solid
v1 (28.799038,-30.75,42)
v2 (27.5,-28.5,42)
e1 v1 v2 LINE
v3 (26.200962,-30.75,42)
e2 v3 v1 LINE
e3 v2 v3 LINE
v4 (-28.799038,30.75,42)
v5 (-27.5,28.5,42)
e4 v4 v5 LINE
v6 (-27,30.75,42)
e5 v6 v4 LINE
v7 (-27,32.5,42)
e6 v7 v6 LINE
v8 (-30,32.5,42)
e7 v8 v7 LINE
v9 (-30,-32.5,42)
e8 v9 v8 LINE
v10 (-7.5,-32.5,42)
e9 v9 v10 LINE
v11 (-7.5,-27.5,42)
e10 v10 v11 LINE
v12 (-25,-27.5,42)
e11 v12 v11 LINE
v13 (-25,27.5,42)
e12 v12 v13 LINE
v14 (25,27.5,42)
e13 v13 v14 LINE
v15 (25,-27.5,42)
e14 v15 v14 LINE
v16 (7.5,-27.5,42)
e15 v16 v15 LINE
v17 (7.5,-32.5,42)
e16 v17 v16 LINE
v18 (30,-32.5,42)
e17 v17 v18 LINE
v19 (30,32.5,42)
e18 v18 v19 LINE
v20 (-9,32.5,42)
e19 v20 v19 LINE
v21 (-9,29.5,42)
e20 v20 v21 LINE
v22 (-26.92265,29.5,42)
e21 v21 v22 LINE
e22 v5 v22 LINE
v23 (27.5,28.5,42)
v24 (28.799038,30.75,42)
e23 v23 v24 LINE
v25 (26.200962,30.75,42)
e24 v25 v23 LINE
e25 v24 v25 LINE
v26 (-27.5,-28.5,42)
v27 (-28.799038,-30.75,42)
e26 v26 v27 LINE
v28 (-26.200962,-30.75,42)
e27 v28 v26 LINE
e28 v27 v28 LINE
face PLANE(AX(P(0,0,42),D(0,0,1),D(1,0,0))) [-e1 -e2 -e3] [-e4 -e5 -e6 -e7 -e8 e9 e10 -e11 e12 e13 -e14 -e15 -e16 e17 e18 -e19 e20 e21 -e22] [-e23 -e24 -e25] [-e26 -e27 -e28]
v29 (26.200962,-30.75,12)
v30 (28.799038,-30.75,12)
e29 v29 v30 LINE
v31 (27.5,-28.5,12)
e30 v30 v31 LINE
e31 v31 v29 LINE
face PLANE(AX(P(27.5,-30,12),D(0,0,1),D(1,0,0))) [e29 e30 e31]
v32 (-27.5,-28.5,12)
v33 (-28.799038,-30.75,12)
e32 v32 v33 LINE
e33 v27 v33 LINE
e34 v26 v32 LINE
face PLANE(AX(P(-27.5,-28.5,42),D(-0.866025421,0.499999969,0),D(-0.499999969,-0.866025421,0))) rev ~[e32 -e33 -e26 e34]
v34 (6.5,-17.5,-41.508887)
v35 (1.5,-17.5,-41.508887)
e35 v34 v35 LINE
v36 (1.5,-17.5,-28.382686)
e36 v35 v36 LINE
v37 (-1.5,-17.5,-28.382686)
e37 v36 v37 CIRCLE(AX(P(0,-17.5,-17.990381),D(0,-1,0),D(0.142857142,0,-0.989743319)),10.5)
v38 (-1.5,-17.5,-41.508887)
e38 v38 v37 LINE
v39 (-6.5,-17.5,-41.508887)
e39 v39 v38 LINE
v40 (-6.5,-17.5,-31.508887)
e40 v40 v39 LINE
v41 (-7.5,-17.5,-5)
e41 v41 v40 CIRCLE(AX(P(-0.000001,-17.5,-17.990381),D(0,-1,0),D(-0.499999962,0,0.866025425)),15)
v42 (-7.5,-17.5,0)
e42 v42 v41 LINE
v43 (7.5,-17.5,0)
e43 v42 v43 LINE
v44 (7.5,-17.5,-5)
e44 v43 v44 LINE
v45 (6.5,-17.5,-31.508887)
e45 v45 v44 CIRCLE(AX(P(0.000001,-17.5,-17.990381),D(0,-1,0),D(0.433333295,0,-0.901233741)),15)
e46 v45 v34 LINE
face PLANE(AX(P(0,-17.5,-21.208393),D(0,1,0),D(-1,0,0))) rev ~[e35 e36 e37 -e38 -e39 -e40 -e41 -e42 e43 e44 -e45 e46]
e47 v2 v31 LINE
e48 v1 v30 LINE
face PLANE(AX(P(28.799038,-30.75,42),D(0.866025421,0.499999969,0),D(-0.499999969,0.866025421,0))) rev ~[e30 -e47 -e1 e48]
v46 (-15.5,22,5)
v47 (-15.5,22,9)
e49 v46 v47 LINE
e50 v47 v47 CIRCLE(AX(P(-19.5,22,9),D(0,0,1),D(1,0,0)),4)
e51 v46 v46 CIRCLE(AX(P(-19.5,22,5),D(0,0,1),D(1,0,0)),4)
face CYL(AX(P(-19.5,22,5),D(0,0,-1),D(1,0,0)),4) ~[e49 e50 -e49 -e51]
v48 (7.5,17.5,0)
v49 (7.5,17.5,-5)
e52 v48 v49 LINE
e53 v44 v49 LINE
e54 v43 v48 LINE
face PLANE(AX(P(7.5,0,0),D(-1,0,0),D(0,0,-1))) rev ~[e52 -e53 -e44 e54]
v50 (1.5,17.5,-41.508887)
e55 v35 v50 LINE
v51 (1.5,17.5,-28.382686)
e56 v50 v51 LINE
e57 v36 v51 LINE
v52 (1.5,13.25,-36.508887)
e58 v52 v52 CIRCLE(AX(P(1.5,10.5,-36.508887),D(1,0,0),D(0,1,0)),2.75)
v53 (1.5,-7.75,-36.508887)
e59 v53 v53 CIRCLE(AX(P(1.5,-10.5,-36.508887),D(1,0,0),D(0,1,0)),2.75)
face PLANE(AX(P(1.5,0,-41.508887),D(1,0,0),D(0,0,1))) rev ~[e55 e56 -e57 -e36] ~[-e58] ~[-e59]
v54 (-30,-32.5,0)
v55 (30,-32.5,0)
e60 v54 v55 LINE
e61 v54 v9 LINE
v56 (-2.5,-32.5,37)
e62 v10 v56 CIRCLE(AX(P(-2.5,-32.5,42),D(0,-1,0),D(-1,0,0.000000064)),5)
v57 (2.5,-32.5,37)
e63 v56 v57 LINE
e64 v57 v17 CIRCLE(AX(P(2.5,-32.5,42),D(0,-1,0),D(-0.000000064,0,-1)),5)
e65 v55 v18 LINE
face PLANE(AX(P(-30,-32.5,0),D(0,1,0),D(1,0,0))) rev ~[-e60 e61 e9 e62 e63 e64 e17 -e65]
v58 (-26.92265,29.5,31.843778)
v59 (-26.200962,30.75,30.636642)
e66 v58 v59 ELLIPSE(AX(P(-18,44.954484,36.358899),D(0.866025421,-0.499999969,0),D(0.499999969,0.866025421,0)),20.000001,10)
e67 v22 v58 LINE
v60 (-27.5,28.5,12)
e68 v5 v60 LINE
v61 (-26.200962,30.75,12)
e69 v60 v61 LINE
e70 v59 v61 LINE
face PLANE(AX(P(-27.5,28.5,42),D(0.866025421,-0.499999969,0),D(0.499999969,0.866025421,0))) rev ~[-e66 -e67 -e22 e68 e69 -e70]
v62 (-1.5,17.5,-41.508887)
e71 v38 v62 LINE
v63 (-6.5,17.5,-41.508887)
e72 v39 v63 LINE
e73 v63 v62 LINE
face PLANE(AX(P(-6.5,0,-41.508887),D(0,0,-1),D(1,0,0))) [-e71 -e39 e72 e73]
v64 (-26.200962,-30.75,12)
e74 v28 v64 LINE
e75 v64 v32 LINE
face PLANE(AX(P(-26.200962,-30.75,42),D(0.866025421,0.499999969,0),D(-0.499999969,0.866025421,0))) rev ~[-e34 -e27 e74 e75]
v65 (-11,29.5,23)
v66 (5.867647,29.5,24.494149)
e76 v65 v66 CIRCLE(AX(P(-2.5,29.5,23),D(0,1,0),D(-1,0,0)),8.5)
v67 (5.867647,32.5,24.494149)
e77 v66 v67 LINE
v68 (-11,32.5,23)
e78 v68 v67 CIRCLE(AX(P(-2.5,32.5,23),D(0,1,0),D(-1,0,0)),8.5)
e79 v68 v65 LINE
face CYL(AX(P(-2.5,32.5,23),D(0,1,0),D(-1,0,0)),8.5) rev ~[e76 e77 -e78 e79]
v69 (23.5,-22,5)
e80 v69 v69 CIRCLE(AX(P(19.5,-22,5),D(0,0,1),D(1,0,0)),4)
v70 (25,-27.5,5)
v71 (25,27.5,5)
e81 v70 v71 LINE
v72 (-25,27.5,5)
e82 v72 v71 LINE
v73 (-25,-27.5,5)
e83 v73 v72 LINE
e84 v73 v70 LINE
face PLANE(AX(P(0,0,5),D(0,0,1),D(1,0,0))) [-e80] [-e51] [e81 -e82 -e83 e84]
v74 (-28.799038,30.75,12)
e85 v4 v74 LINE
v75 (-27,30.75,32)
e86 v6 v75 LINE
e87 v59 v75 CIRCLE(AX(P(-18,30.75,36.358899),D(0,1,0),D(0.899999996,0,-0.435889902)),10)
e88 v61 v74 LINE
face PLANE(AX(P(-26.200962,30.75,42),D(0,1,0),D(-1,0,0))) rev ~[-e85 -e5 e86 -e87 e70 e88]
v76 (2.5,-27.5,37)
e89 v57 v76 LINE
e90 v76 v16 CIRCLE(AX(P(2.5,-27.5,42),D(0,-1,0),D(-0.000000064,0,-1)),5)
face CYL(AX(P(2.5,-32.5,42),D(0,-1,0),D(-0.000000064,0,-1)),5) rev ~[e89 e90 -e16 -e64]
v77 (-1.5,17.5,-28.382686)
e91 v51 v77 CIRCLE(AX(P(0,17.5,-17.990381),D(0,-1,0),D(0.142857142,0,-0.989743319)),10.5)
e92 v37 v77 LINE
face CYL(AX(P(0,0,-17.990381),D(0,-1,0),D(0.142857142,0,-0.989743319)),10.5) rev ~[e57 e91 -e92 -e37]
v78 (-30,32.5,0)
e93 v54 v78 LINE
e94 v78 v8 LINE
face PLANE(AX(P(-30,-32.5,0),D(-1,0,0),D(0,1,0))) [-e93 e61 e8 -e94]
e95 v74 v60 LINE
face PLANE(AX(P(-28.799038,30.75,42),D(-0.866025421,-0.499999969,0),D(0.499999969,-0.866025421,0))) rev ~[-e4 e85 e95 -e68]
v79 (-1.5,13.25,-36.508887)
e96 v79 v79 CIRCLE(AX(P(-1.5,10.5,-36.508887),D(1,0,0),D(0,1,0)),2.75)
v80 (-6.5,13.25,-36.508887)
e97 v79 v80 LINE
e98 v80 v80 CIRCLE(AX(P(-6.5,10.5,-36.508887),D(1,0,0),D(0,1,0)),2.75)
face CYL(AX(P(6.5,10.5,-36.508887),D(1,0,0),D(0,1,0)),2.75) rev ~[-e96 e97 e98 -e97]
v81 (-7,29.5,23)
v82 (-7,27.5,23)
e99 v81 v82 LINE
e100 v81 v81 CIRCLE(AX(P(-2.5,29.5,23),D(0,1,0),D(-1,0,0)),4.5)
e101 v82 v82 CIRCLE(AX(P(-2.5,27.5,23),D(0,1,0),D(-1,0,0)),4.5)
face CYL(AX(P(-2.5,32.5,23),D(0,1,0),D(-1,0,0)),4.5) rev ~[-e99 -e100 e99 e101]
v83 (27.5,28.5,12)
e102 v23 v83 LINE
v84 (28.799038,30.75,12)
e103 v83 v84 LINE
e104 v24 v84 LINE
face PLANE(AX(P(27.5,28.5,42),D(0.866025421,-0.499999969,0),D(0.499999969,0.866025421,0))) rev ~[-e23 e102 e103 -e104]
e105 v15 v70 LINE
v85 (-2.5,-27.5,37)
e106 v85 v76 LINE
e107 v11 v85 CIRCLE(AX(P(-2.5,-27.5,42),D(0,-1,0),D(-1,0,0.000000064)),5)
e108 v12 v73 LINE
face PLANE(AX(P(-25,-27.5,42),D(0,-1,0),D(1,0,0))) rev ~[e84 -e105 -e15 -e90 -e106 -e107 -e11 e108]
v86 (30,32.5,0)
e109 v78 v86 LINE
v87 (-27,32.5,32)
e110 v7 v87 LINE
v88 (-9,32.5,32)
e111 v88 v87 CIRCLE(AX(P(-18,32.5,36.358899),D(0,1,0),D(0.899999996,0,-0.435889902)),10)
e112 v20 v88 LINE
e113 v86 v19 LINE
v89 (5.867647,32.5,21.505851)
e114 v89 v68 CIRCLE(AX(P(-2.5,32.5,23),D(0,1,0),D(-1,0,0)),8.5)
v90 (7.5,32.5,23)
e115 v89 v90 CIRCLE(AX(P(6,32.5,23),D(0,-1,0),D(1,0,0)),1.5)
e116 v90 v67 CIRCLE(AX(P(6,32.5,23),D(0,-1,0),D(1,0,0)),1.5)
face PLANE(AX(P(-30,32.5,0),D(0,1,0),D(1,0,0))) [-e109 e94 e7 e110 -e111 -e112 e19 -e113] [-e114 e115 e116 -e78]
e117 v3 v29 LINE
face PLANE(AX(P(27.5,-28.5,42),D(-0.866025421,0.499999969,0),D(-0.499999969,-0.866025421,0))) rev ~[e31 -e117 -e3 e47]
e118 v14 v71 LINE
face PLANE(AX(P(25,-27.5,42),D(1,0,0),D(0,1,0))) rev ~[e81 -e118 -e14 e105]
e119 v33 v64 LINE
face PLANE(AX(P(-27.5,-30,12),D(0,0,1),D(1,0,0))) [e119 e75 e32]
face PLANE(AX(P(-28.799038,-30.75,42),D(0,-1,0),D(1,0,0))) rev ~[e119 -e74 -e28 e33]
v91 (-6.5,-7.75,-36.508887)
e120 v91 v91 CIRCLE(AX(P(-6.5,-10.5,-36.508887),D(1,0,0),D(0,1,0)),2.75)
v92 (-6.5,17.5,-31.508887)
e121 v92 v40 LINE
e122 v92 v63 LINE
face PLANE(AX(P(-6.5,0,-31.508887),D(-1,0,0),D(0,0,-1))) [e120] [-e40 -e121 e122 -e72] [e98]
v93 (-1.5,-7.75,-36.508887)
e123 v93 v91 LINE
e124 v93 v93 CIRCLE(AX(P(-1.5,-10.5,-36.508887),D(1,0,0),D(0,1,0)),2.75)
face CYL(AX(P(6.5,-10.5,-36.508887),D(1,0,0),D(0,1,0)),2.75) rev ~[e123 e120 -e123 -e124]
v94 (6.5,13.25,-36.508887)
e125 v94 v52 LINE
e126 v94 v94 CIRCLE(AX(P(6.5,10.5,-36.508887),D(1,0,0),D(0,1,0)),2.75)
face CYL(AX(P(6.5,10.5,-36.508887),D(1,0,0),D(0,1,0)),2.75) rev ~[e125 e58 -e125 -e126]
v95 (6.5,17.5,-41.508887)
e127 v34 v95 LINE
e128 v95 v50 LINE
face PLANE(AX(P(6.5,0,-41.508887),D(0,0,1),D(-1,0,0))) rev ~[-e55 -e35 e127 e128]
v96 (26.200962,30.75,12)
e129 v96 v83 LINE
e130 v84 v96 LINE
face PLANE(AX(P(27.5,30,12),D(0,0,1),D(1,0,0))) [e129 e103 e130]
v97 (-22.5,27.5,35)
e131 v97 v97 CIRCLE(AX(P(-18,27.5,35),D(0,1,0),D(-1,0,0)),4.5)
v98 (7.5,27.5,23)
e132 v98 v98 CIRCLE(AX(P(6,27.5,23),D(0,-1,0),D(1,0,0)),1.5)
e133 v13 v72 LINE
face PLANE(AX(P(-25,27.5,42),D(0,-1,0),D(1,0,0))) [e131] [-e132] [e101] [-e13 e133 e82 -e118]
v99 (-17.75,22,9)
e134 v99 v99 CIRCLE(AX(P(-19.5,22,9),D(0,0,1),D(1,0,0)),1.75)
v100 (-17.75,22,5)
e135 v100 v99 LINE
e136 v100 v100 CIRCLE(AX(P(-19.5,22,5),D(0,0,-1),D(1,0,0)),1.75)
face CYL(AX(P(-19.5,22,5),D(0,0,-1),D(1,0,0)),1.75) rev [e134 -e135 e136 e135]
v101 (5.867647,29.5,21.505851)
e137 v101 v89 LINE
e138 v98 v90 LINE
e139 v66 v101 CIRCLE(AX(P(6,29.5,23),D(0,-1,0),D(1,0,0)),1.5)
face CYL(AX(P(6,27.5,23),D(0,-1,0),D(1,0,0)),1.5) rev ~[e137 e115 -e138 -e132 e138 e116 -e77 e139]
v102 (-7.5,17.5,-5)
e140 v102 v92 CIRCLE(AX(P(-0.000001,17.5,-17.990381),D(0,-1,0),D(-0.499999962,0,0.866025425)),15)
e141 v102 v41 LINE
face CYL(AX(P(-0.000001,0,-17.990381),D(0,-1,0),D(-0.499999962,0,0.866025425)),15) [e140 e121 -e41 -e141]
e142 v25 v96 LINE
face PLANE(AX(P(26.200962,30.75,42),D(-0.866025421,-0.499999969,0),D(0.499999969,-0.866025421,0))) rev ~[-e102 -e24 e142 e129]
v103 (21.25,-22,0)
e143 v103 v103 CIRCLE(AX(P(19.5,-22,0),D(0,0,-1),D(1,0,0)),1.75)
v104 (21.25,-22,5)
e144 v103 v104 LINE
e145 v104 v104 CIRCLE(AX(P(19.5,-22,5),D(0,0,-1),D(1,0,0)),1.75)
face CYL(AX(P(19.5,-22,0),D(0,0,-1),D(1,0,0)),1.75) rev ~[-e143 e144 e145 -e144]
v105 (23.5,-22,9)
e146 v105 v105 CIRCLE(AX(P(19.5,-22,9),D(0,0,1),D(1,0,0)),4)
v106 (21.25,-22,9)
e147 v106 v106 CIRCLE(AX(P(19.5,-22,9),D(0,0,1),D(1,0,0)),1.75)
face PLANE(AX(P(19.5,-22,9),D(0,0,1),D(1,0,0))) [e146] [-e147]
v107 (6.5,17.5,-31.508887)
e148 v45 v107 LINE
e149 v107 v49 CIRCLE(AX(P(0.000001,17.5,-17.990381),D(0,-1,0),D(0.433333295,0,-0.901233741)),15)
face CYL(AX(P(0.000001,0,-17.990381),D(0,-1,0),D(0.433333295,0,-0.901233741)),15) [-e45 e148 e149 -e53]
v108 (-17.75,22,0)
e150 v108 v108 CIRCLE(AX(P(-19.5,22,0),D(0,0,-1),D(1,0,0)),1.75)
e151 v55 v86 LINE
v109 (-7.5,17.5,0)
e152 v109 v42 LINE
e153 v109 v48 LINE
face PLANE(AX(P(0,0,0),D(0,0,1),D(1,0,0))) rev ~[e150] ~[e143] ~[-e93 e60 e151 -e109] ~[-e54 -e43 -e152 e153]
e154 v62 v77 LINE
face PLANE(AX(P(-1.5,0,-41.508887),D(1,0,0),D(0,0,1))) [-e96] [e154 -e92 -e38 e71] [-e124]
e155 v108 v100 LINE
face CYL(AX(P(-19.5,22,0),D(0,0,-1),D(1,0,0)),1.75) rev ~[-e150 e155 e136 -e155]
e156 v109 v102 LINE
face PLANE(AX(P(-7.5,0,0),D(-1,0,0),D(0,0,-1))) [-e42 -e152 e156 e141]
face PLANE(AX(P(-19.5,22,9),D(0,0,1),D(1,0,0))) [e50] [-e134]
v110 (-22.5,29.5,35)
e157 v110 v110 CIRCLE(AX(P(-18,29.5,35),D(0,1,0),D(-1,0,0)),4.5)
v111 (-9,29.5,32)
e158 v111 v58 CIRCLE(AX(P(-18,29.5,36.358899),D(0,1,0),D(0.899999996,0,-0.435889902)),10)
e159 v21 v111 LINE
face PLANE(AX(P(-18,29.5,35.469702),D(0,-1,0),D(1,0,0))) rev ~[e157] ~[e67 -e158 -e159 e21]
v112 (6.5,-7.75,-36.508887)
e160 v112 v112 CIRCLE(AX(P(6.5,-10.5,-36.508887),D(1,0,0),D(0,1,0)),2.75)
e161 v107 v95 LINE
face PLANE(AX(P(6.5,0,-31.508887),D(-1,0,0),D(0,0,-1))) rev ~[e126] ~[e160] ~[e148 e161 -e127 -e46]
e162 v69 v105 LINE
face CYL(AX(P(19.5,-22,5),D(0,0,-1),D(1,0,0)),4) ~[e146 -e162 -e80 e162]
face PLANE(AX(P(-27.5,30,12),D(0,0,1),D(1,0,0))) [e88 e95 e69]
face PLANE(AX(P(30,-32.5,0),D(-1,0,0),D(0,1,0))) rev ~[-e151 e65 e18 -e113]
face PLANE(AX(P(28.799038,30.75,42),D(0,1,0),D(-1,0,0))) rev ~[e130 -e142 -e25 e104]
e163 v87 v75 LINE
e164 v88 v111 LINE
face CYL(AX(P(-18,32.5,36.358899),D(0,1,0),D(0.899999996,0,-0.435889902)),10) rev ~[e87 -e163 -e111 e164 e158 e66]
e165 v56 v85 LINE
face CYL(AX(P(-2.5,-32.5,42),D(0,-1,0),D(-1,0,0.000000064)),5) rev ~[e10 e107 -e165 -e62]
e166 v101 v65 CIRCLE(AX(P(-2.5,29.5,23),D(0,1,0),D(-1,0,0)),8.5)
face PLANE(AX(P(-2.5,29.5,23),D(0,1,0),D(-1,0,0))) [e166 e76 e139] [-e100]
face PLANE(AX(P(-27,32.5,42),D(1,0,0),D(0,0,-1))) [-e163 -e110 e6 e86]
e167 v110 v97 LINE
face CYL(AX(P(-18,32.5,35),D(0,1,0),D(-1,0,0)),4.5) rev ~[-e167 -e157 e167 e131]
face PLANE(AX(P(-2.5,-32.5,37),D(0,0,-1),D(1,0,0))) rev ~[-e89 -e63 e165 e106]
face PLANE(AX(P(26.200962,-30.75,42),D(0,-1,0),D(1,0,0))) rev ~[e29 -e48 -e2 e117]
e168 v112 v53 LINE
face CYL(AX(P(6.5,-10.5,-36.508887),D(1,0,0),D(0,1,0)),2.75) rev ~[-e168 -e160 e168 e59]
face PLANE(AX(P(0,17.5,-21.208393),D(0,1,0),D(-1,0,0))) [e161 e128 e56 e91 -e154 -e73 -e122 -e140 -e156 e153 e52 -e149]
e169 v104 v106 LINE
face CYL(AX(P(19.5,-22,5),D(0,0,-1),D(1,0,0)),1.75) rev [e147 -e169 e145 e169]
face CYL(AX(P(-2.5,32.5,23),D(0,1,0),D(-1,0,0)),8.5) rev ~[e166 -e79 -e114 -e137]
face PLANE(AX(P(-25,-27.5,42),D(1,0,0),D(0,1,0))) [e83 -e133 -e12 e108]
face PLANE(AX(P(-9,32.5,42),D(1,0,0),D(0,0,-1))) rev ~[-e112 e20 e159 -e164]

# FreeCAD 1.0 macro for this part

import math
import FreeCAD as App
import Part
import Sketcher
from FreeCAD import Vector
Q = App.Units.Quantity

doc = App.newDocument("Part")
params = doc.addObject("Spreadsheet::Sheet", "Params")
for row, (alias, value) in enumerate([
    ("sketch1_width", "60 mm"),
    ("sketch1_height", "65 mm"),
    ("pad1_length", "42 mm"),
    ("sketch2_width", "50 mm"),
    ("sketch2_height", "55 mm"),
    ("pocket1_length", "37 mm"),
    ("sketch3_diameter", "3.5 mm"),
    ("pocket2_length", "5 mm"),
    ("sketch4_diameter", "8 mm"),
    ("sketch4_diameter2", "3.5 mm"),
    ("pad2_length", "4 mm"),
    ("sketch5_diameter", "9 mm"),
    ("pocket3_length", "5 mm"),
    ("sketch6_diameter", "17 mm"),
    ("pocket4_length", "3 mm"),
    ("pocket5_length", "30 mm"),
    ("sketch8_radius", "5 mm"),
    ("sketch8_width", "15 mm"),
    ("pocket6_length", "5 mm"),
    ("sketch9_radius", "15 mm"),
    ("sketch9_radius2", "10.5 mm"),
    ("sketch9_width", "15 mm"),
    ("sketch9_width2", "5 mm"),
    ("sketch9_height", "10 mm"),
    ("pad3_length", "35 mm"),
    ("sketch10_diameter", "5.5 mm"),
    ("sketch11_diameter", "9 mm"),
    ("pocket8_length", "5 mm"),
    ("sketch12_radius", "10 mm"),
    ("sketch12_width", "18 mm"),
    ("sketch12_height", "10 mm"),
    ("pocket9_length", "3 mm"),
    ("sketch13_diameter", "3 mm"),
    ("pocket10_length", "5 mm"),
], start=1):
    params.set(f"A{row}", alias)
    params.set(f"B{row}", "=" + value)
    params.setAlias(f"B{row}", alias)

body = doc.addObject("PartDesign::Body", "Body")

# Sketch on XY plane
sketch1 = body.newObject("Sketcher::SketchObject", "Sketch")
sketch1.AttachmentSupport = (doc.getObject("XY_Plane"), [""])
sketch1.MapMode = "FlatFace"
sketch1.addGeometry(Part.LineSegment(Vector(-30, 32, 0), Vector(-30, -32, 0)), False)
sketch1.addGeometry(Part.LineSegment(Vector(-30, -32, 0), Vector(30, -32, 0)), False)
sketch1.addGeometry(Part.LineSegment(Vector(30, -32, 0), Vector(30, 32, 0)), False)
sketch1.addGeometry(Part.LineSegment(Vector(30, 32, 0), Vector(-30, 32, 0)), False)
sketch1.addConstraint(Sketcher.Constraint("Coincident", 0, 2, 1, 1))
sketch1.addConstraint(Sketcher.Constraint("Coincident", 1, 2, 2, 1))
sketch1.addConstraint(Sketcher.Constraint("Coincident", 2, 2, 3, 1))
sketch1.addConstraint(Sketcher.Constraint("Coincident", 3, 2, 0, 1))
sketch1.addConstraint(Sketcher.Constraint("Vertical", 0))
sketch1.addConstraint(Sketcher.Constraint("Horizontal", 1))
sketch1.addConstraint(Sketcher.Constraint("Vertical", 2))
sketch1.addConstraint(Sketcher.Constraint("Horizontal", 3))
sketch1.addConstraint(Sketcher.Constraint("Symmetric", 0, 2, 2, 2, -1, 1))
sketch1.addConstraint(Sketcher.Constraint("DistanceX", 1, 1, 1, 2, Q("60 mm")))
sketch1.addConstraint(Sketcher.Constraint("DistanceY", 0, 2, 0, 1, Q("65 mm")))
sketch1.setExpression("Constraints[9]", "Params.sketch1_width")
sketch1.setExpression("Constraints[10]", "Params.sketch1_height")
pad1 = body.newObject("PartDesign::Pad", "Pad")
pad1.Profile = sketch1
pad1.setExpression("Length", "Params.pad1_length")

# Sketch on XY plane
sketch2 = body.newObject("Sketcher::SketchObject", "Sketch001")
sketch2.AttachmentSupport = (doc.getObject("XY_Plane"), [""])
sketch2.MapMode = "FlatFace"
sketch2.AttachmentOffset = App.Placement(Vector(0, 0, 42), App.Rotation())
sketch2.addGeometry(Part.LineSegment(Vector(-25, 28, 0), Vector(-25, -28, 0)), False)
sketch2.addGeometry(Part.LineSegment(Vector(-25, -28, 0), Vector(25, -28, 0)), False)
sketch2.addGeometry(Part.LineSegment(Vector(25, -28, 0), Vector(25, 28, 0)), False)
sketch2.addGeometry(Part.LineSegment(Vector(25, 28, 0), Vector(-25, 28, 0)), False)
sketch2.addConstraint(Sketcher.Constraint("Coincident", 0, 2, 1, 1))
sketch2.addConstraint(Sketcher.Constraint("Coincident", 1, 2, 2, 1))
sketch2.addConstraint(Sketcher.Constraint("Coincident", 2, 2, 3, 1))
sketch2.addConstraint(Sketcher.Constraint("Coincident", 3, 2, 0, 1))
sketch2.addConstraint(Sketcher.Constraint("Vertical", 0))
sketch2.addConstraint(Sketcher.Constraint("Horizontal", 1))
sketch2.addConstraint(Sketcher.Constraint("Vertical", 2))
sketch2.addConstraint(Sketcher.Constraint("Horizontal", 3))
sketch2.addConstraint(Sketcher.Constraint("Symmetric", 0, 2, 2, 2, -1, 1))
sketch2.addConstraint(Sketcher.Constraint("DistanceX", 1, 1, 1, 2, Q("50 mm")))
sketch2.addConstraint(Sketcher.Constraint("DistanceY", 0, 2, 0, 1, Q("55 mm")))
sketch2.setExpression("Constraints[9]", "Params.sketch2_width")
sketch2.setExpression("Constraints[10]", "Params.sketch2_height")
pocket1 = body.newObject("PartDesign::Pocket", "Pocket")
pocket1.Profile = sketch2
pocket1.setExpression("Length", "Params.pocket1_length")

# Sketch on XY plane
sketch3 = body.newObject("Sketcher::SketchObject", "Sketch002")
sketch3.AttachmentSupport = (doc.getObject("XY_Plane"), [""])
sketch3.MapMode = "FlatFace"
sketch3.addGeometry(Part.Circle(Vector(-19.5, 22, 0), Vector(0, 0, 1), 1.8), False)
sketch3.addGeometry(Part.Circle(Vector(19.5, -22, 0), Vector(0, 0, 1), 1.8), False)
sketch3.addConstraint(Sketcher.Constraint("Equal", 0, 1))
sketch3.addConstraint(Sketcher.Constraint("Symmetric", 0, 3, 1, 3, -1, 1))
sketch3.addConstraint(Sketcher.Constraint("Diameter", 0, Q("3.5 mm")))
sketch3.addConstraint(Sketcher.Constraint("DistanceY", -1, 1, 0, 3, Q("22 mm")))
sketch3.addConstraint(Sketcher.Constraint("DistanceX", 0, 3, 1, 3, Q("39 mm")))
sketch3.setExpression("Constraints[2]", "Params.sketch3_diameter")
pocket2 = body.newObject("PartDesign::Pocket", "Pocket001")
pocket2.Profile = sketch3
pocket2.setExpression("Length", "Params.pocket2_length")
pocket2.Reversed = True

# Sketch on XY plane
sketch4 = body.newObject("Sketcher::SketchObject", "Sketch003")
sketch4.AttachmentSupport = (doc.getObject("XY_Plane"), [""])
sketch4.MapMode = "FlatFace"
sketch4.AttachmentOffset = App.Placement(Vector(0, 0, 5), App.Rotation())
sketch4.addGeometry(Part.Circle(Vector(-19.5, 22, 0), Vector(0, 0, 1), 4), False)
sketch4.addGeometry(Part.Circle(Vector(-19.5, 22, 0), Vector(0, 0, 1), 1.8), False)
sketch4.addGeometry(Part.Circle(Vector(19.5, -22, 0), Vector(0, 0, 1), 4), False)
sketch4.addGeometry(Part.Circle(Vector(19.5, -22, 0), Vector(0, 0, 1), 1.8), False)
sketch4.addConstraint(Sketcher.Constraint("Coincident", 1, 3, 0, 3))
sketch4.addConstraint(Sketcher.Constraint("Coincident", 3, 3, 2, 3))
sketch4.addConstraint(Sketcher.Constraint("Equal", 0, 2))
sketch4.addConstraint(Sketcher.Constraint("Equal", 1, 3))
sketch4.addConstraint(Sketcher.Constraint("Symmetric", 0, 3, 2, 3, -1, 1))
sketch4.addConstraint(Sketcher.Constraint("Diameter", 0, Q("8 mm")))
sketch4.addConstraint(Sketcher.Constraint("Diameter", 1, Q("3.5 mm")))
sketch4.addConstraint(Sketcher.Constraint("DistanceY", -1, 1, 0, 3, Q("22 mm")))
sketch4.addConstraint(Sketcher.Constraint("DistanceX", 0, 3, 2, 3, Q("39 mm")))
sketch4.setExpression("Constraints[5]", "Params.sketch4_diameter")
sketch4.setExpression("Constraints[6]", "Params.sketch4_diameter2")
pad2 = body.newObject("PartDesign::Pad", "Pad001")
pad2.Profile = sketch4
pad2.setExpression("Length", "Params.pad2_length")

# Sketch on XZ plane
sketch5 = body.newObject("Sketcher::SketchObject", "Sketch004")
sketch5.AttachmentSupport = (doc.getObject("XZ_Plane"), [""])
sketch5.MapMode = "FlatFace"
sketch5.AttachmentOffset = App.Placement(Vector(0, 0, -32.5), App.Rotation())
sketch5.addGeometry(Part.Circle(Vector(-2.5, 23, 0), Vector(0, 0, 1), 4.5), False)
sketch5.addConstraint(Sketcher.Constraint("Diameter", 0, Q("9 mm")))
sketch5.addConstraint(Sketcher.Constraint("DistanceY", -1, 1, 0, 3, Q("23 mm")))
sketch5.addConstraint(Sketcher.Constraint("DistanceX", 0, 3, -1, 1, Q("2.5 mm")))
sketch5.setExpression("Constraints[0]", "Params.sketch5_diameter")
pocket3 = body.newObject("PartDesign::Pocket", "Pocket002")
pocket3.Profile = sketch5
pocket3.setExpression("Length", "Params.pocket3_length")
pocket3.Reversed = True

# Sketch on XZ plane
sketch6 = body.newObject("Sketcher::SketchObject", "Sketch005")
sketch6.AttachmentSupport = (doc.getObject("XZ_Plane"), [""])
sketch6.MapMode = "FlatFace"
sketch6.AttachmentOffset = App.Placement(Vector(0, 0, -32.5), App.Rotation())
sketch6.addGeometry(Part.Circle(Vector(-2, 23, 0), Vector(0, 0, 1), 8), False)
sketch6.addConstraint(Sketcher.Constraint("Diameter", 0, Q("17 mm")))
sketch6.addConstraint(Sketcher.Constraint("DistanceY", -1, 1, 0, 3, Q("23 mm")))
sketch6.addConstraint(Sketcher.Constraint("DistanceX", 0, 3, -1, 1, Q("2.5 mm")))
sketch6.setExpression("Constraints[0]", "Params.sketch6_diameter")
pocket4 = body.newObject("PartDesign::Pocket", "Pocket003")
pocket4.Profile = sketch6
pocket4.setExpression("Length", "Params.pocket4_length")
pocket4.Reversed = True

# Sketch on XY plane
sketch7 = body.newObject("Sketcher::SketchObject", "Sketch006")
sketch7.AttachmentSupport = (doc.getObject("XY_Plane"), [""])
sketch7.MapMode = "FlatFace"
sketch7.AttachmentOffset = App.Placement(Vector(0, 0, 42), App.Rotation())
sketch7.addGeometry(Part.LineSegment(Vector(-27.5, 28.5, 0), Vector(-26.2, 30.8, 0)), False)
sketch7.addGeometry(Part.LineSegment(Vector(-26.2, 30.8, 0), Vector(-28.8, 30.8, 0)), False)
sketch7.addGeometry(Part.LineSegment(Vector(-28.8, 30.8, 0), Vector(-27.5, 28.5, 0)), False)
sketch7.addGeometry(Part.LineSegment(Vector(27.5, 28.5, 0), Vector(28.8, 30.8, 0)), False)
sketch7.addGeometry(Part.LineSegment(Vector(28.8, 30.8, 0), Vector(26.2, 30.8, 0)), False)
sketch7.addGeometry(Part.LineSegment(Vector(26.2, 30.8, 0), Vector(27.5, 28.5, 0)), False)
sketch7.addGeometry(Part.LineSegment(Vector(28.8, -30.8, 0), Vector(27.5, -28.5, 0)), False)
sketch7.addGeometry(Part.LineSegment(Vector(27.5, -28.5, 0), Vector(26.2, -30.8, 0)), False)
sketch7.addGeometry(Part.LineSegment(Vector(26.2, -30.8, 0), Vector(28.8, -30.8, 0)), False)
sketch7.addGeometry(Part.LineSegment(Vector(-26.2, -30.8, 0), Vector(-27.5, -28.5, 0)), False)
sketch7.addGeometry(Part.LineSegment(Vector(-27.5, -28.5, 0), Vector(-28.8, -30.8, 0)), False)
sketch7.addGeometry(Part.LineSegment(Vector(-28.8, -30.8, 0), Vector(-26.2, -30.8, 0)), False)
sketch7.addConstraint(Sketcher.Constraint("Coincident", 0, 2, 1, 1))
sketch7.addConstraint(Sketcher.Constraint("Coincident", 1, 2, 2, 1))
sketch7.addConstraint(Sketcher.Constraint("Coincident", 2, 2, 0, 1))
sketch7.addConstraint(Sketcher.Constraint("Coincident", 3, 2, 4, 1))
sketch7.addConstraint(Sketcher.Constraint("Coincident", 4, 2, 5, 1))
sketch7.addConstraint(Sketcher.Constraint("Coincident", 5, 2, 3, 1))
sketch7.addConstraint(Sketcher.Constraint("Coincident", 6, 2, 7, 1))
sketch7.addConstraint(Sketcher.Constraint("Coincident", 7, 2, 8, 1))
sketch7.addConstraint(Sketcher.Constraint("Coincident", 8, 2, 6, 1))
sketch7.addConstraint(Sketcher.Constraint("Coincident", 9, 2, 10, 1))
sketch7.addConstraint(Sketcher.Constraint("Coincident", 10, 2, 11, 1))
sketch7.addConstraint(Sketcher.Constraint("Coincident", 11, 2, 9, 1))
sketch7.addConstraint(Sketcher.Constraint("Horizontal", 1))
sketch7.addConstraint(Sketcher.Constraint("Horizontal", 4))
sketch7.addConstraint(Sketcher.Constraint("Horizontal", 8))
sketch7.addConstraint(Sketcher.Constraint("Horizontal", 11))
sketch7.addConstraint(Sketcher.Constraint("Symmetric", 2, 2, 6, 2, -1, 1))
sketch7.addConstraint(Sketcher.Constraint("Symmetric", 0, 2, 7, 2, -1, 1))
sketch7.addConstraint(Sketcher.Constraint("Symmetric", 5, 2, 9, 2, -1, 1))
sketch7.addConstraint(Sketcher.Constraint("Symmetric", 3, 2, 10, 2, -1, 1))
sketch7.addConstraint(Sketcher.Constraint("Symmetric", 1, 2, 3, 2, -2))
sketch7.addConstraint(Sketcher.Constraint("Symmetric", 2, 2, 5, 2, -2))
sketch7.addConstraint(Sketcher.Constraint("Parallel", 0, 3))
sketch7.addConstraint(Sketcher.Constraint("Parallel", 2, 5))
sketch7.addConstraint(Sketcher.Constraint("Parallel", 5, 6))
sketch7.addConstraint(Sketcher.Constraint("Parallel", 6, 9))
sketch7.addConstraint(Sketcher.Constraint("Angle", 0, Q("60.000002 deg")))
sketch7.addConstraint(Sketcher.Constraint("DistanceX", 0, 2, 3, 2, Q("55 mm")))
sketch7.addConstraint(Sketcher.Constraint("DistanceY", 6, 2, 5, 2, Q("57 mm")))
sketch7.addConstraint(Sketcher.Constraint("DistanceY", 7, 2, 4, 2, Q("61.5 mm")))
pocket5 = body.newObject("PartDesign::Pocket", "Pocket004")
pocket5.Profile = sketch7
pocket5.setExpression("Length", "Params.pocket5_length")

# Sketch on XZ plane
sketch8 = body.newObject("Sketcher::SketchObject", "Sketch007")
sketch8.AttachmentSupport = (doc.getObject("XZ_Plane"), [""])
sketch8.MapMode = "FlatFace"
sketch8.AttachmentOffset = App.Placement(Vector(0, 0, 32.5), App.Rotation())
sketch8.addGeometry(Part.LineSegment(Vector(7.5, 42, 0), Vector(-7.5, 42, 0)), False)
sketch8.addGeometry(Part.ArcOfCircle(Part.Circle(Vector(-2.5, 42, 0), Vector(0, 0, 1), 5), math.radians(180), math.radians(270)), False)
sketch8.addGeometry(Part.LineSegment(Vector(-2.5, 37, 0), Vector(2.5, 37, 0)), False)
sketch8.addGeometry(Part.ArcOfCircle(Part.Circle(Vector(2.5, 42, 0), Vector(0, 0, 1), 5), math.radians(-90), math.radians(0)), False)
sketch8.addConstraint(Sketcher.Constraint("Coincident", 0, 2, 1, 1))
sketch8.addConstraint(Sketcher.Constraint("Tangent", 1, 2, 2, 1))
sketch8.addConstraint(Sketcher.Constraint("Tangent", 2, 2, 3, 1))
sketch8.addConstraint(Sketcher.Constraint("Coincident", 3, 2, 0, 1))
sketch8.addConstraint(Sketcher.Constraint("Horizontal", 0))
sketch8.addConstraint(Sketcher.Constraint("Horizontal", 2))
sketch8.addConstraint(Sketcher.Constraint("Equal", 1, 3))
sketch8.addConstraint(Sketcher.Constraint("Horizontal", 3, 3, 0, 2))
sketch8.addConstraint(Sketcher.Constraint("Radius", 1, Q("5 mm")))
sketch8.addConstraint(Sketcher.Constraint("DistanceX", 0, 2, 0, 1, Q("15 mm")))
sketch8.addConstraint(Sketcher.Constraint("DistanceY", -1, 1, 1, 3, Q("42 mm")))
sketch8.addConstraint(Sketcher.Constraint("DistanceX", 1, 3, -1, 1, Q("2.5 mm")))
sketch8.setExpression("Constraints[8]", "Params.sketch8_radius")
sketch8.setExpression("Constraints[9]", "Params.sketch8_width")
pocket6 = body.newObject("PartDesign::Pocket", "Pocket005")
pocket6.Profile = sketch8
pocket6.setExpression("Length", "Params.pocket6_length")

# Sketch on XZ plane
sketch9 = body.newObject("Sketcher::SketchObject", "Sketch008")
sketch9.AttachmentSupport = (doc.getObject("XZ_Plane"), [""])
sketch9.MapMode = "FlatFace"
sketch9.addGeometry(Part.LineSegment(Vector(7.5, 0, 0), Vector(-7.5, 0, 0)), False)
sketch9.addGeometry(Part.LineSegment(Vector(-7.5, 0, 0), Vector(-7.5, -5, 0)), False)
sketch9.addGeometry(Part.ArcOfCircle(Part.Circle(Vector(0, -18, 0), Vector(0, 0, 1), 15), math.radians(120), math.radians(244)), False)
sketch9.addGeometry(Part.LineSegment(Vector(-6.5, -31.5, 0), Vector(-6.5, -41.5, 0)), False)
sketch9.addGeometry(Part.LineSegment(Vector(-6.5, -41.5, 0), Vector(-1.5, -41.5, 0)), False)
sketch9.addGeometry(Part.LineSegment(Vector(-1.5, -41.5, 0), Vector(-1.5, -28.4, 0)), False)
sketch9.addGeometry(Part.ArcOfCircle(Part.Circle(Vector(0, -18, 0), Vector(0, 0, 1), 10.5), math.radians(-82), math.radians(262)), False)
sketch9.addGeometry(Part.LineSegment(Vector(1.5, -28.4, 0), Vector(1.5, -41.5, 0)), False)
sketch9.addGeometry(Part.LineSegment(Vector(1.5, -41.5, 0), Vector(6.5, -41.5, 0)), False)
sketch9.addGeometry(Part.LineSegment(Vector(6.5, -41.5, 0), Vector(6.5, -31.5, 0)), False)
sketch9.addGeometry(Part.ArcOfCircle(Part.Circle(Vector(0, -18, 0), Vector(0, 0, 1), 15), math.radians(-64), math.radians(60)), False)
sketch9.addGeometry(Part.LineSegment(Vector(7.5, -5, 0), Vector(7.5, 0, 0)), False)
sketch9.addConstraint(Sketcher.Constraint("Coincident", 0, 2, 1, 1))
sketch9.addConstraint(Sketcher.Constraint("Coincident", 1, 2, 2, 1))
sketch9.addConstraint(Sketcher.Constraint("Coincident", 2, 2, 3, 1))
sketch9.addConstraint(Sketcher.Constraint("Coincident", 3, 2, 4, 1))
sketch9.addConstraint(Sketcher.Constraint("Coincident", 4, 2, 5, 1))
sketch9.addConstraint(Sketcher.Constraint("Coincident", 5, 2, 6, 2))
sketch9.addConstraint(Sketcher.Constraint("Coincident", 6, 1, 7, 1))
sketch9.addConstraint(Sketcher.Constraint("Coincident", 7, 2, 8, 1))
sketch9.addConstraint(Sketcher.Constraint("Coincident", 8, 2, 9, 1))
sketch9.addConstraint(Sketcher.Constraint("Coincident", 9, 2, 10, 1))
sketch9.addConstraint(Sketcher.Constraint("Coincident", 10, 2, 11, 1))
sketch9.addConstraint(Sketcher.Constraint("Coincident", 11, 2, 0, 1))
sketch9.addConstraint(Sketcher.Constraint("Horizontal", 0))
sketch9.addConstraint(Sketcher.Constraint("Vertical", 1))
sketch9.addConstraint(Sketcher.Constraint("Vertical", 3))
sketch9.addConstraint(Sketcher.Constraint("Horizontal", 4))
sketch9.addConstraint(Sketcher.Constraint("Vertical", 5))
sketch9.addConstraint(Sketcher.Constraint("Vertical", 7))
sketch9.addConstraint(Sketcher.Constraint("Horizontal", 8))
sketch9.addConstraint(Sketcher.Constraint("Vertical", 9))
sketch9.addConstraint(Sketcher.Constraint("Vertical", 11))
sketch9.addConstraint(Sketcher.Constraint("Coincident", 6, 3, 2, 3))
sketch9.addConstraint(Sketcher.Constraint("Coincident", 10, 3, 2, 3))
sketch9.addConstraint(Sketcher.Constraint("Equal", 2, 10))
sketch9.addConstraint(Sketcher.Constraint("Symmetric", 0, 2, 11, 2, -1, 1))
sketch9.addConstraint(Sketcher.Constraint("Symmetric", 5, 2, 6, 1, -2))
sketch9.addConstraint(Sketcher.Constraint("Symmetric", 3, 2, 8, 2, -2))
sketch9.addConstraint(Sketcher.Constraint("Equal", 8, 1))
sketch9.addConstraint(Sketcher.Constraint("Radius", 2, Q("15 mm")))
sketch9.addConstraint(Sketcher.Constraint("Radius", 6, Q("10.5 mm")))
sketch9.addConstraint(Sketcher.Constraint("DistanceX", 0, 2, 0, 1, Q("15 mm")))
sketch9.addConstraint(Sketcher.Constraint("DistanceX", 4, 1, 4, 2, Q("5 mm")))
sketch9.addConstraint(Sketcher.Constraint("DistanceY", 3, 2, 3, 1, Q("10 mm")))
sketch9.addConstraint(Sketcher.Constraint("DistanceX", 1, 2, 2, 2, Q("1 mm")))
sketch9.setExpression("Constraints[28]", "Params.sketch9_radius")
sketch9.setExpression("Constraints[29]", "Params.sketch9_radius2")
sketch9.setExpression("Constraints[30]", "Params.sketch9_width")
sketch9.setExpression("Constraints[31]", "Params.sketch9_width2")
sketch9.setExpression("Constraints[32]", "Params.sketch9_height")
pad3 = body.newObject("PartDesign::Pad", "Pad002")
pad3.Profile = sketch9
pad3.setExpression("Length", "Params.pad3_length")
pad3.Midplane = True

# Sketch on YZ plane
sketch10 = body.newObject("Sketcher::SketchObject", "Sketch009")
sketch10.AttachmentSupport = (doc.getObject("YZ_Plane"), [""])
sketch10.MapMode = "FlatFace"
sketch10.AttachmentOffset = App.Placement(Vector(0, 0, 6.5), App.Rotation())
sketch10.addGeometry(Part.Circle(Vector(-10.5, -36.5, 0), Vector(0, 0, 1), 2.8), False)
sketch10.addGeometry(Part.Circle(Vector(10.5, -36.5, 0), Vector(0, 0, 1), 2.8), False)
sketch10.addConstraint(Sketcher.Constraint("Equal", 0, 1))
sketch10.addConstraint(Sketcher.Constraint("Symmetric", 0, 3, 1, 3, -2))
sketch10.addConstraint(Sketcher.Constraint("Diameter", 0, Q("5.5 mm")))
sketch10.addConstraint(Sketcher.Constraint("DistanceX", 0, 3, 1, 3, Q("21 mm")))
sketch10.addConstraint(Sketcher.Constraint("DistanceY", 0, 3, -1, 1, Q("36.508887 mm")))
sketch10.setExpression("Constraints[2]", "Params.sketch10_diameter")
pocket7 = body.newObject("PartDesign::Pocket", "Pocket006")
pocket7.Profile = sketch10
pocket7.Type = "ThroughAll"

# Sketch on XZ plane
sketch11 = body.newObject("Sketcher::SketchObject", "Sketch010")
sketch11.AttachmentSupport = (doc.getObject("XZ_Plane"), [""])
sketch11.MapMode = "FlatFace"
sketch11.AttachmentOffset = App.Placement(Vector(0, 0, -32.5), App.Rotation())
sketch11.addGeometry(Part.Circle(Vector(-18, 35, 0), Vector(0, 0, 1), 4.5), False)
sketch11.addConstraint(Sketcher.Constraint("Diameter", 0, Q("9 mm")))
sketch11.addConstraint(Sketcher.Constraint("DistanceX", 0, 3, -1, 1, Q("18 mm")))
sketch11.addConstraint(Sketcher.Constraint("DistanceY", -1, 1, 0, 3, Q("35 mm")))
sketch11.setExpression("Constraints[0]", "Params.sketch11_diameter")
pocket8 = body.newObject("PartDesign::Pocket", "Pocket007")
pocket8.Profile = sketch11
pocket8.setExpression("Length", "Params.pocket8_length")
pocket8.Reversed = True

# Sketch on XZ plane
sketch12 = body.newObject("Sketcher::SketchObject", "Sketch011")
sketch12.AttachmentSupport = (doc.getObject("XZ_Plane"), [""])
sketch12.MapMode = "FlatFace"
sketch12.AttachmentOffset = App.Placement(Vector(0, 0, -32.5), App.Rotation())
sketch12.addGeometry(Part.LineSegment(Vector(-27, 42, 0), Vector(-9, 42, 0)), False)
sketch12.addGeometry(Part.LineSegment(Vector(-9, 42, 0), Vector(-9, 32, 0)), False)
sketch12.addGeometry(Part.ArcOfCircle(Part.Circle(Vector(-18, 36, 0), Vector(0, 0, 1), 10), math.radians(-154), math.radians(-26)), False)
sketch12.addGeometry(Part.LineSegment(Vector(-27, 32, 0), Vector(-27, 42, 0)), False)
sketch12.addConstraint(Sketcher.Constraint("Coincident", 0, 2, 1, 1))
sketch12.addConstraint(Sketcher.Constraint("Coincident", 1, 2, 2, 2))
sketch12.addConstraint(Sketcher.Constraint("Coincident", 2, 1, 3, 1))
sketch12.addConstraint(Sketcher.Constraint("Coincident", 3, 2, 0, 1))
sketch12.addConstraint(Sketcher.Constraint("Horizontal", 0))
sketch12.addConstraint(Sketcher.Constraint("Vertical", 1))
sketch12.addConstraint(Sketcher.Constraint("Vertical", 3))
sketch12.addConstraint(Sketcher.Constraint("Horizontal", 1, 2, 2, 1))
sketch12.addConstraint(Sketcher.Constraint("Radius", 2, Q("10 mm")))
sketch12.addConstraint(Sketcher.Constraint("DistanceX", 0, 1, 0, 2, Q("18 mm")))
sketch12.addConstraint(Sketcher.Constraint("DistanceY", 1, 2, 1, 1, Q("10 mm")))
sketch12.addConstraint(Sketcher.Constraint("DistanceX", 2, 3, -1, 1, Q("18 mm")))
sketch12.addConstraint(Sketcher.Constraint("DistanceY", -1, 1, 0, 2, Q("42 mm")))
sketch12.setExpression("Constraints[8]", "Params.sketch12_radius")
sketch12.setExpression("Constraints[9]", "Params.sketch12_width")
sketch12.setExpression("Constraints[10]", "Params.sketch12_height")
pocket9 = body.newObject("PartDesign::Pocket", "Pocket008")
pocket9.Profile = sketch12
pocket9.setExpression("Length", "Params.pocket9_length")
pocket9.Reversed = True

# Sketch on XZ plane
sketch13 = body.newObject("Sketcher::SketchObject", "Sketch012")
sketch13.AttachmentSupport = (doc.getObject("XZ_Plane"), [""])
sketch13.MapMode = "FlatFace"
sketch13.AttachmentOffset = App.Placement(Vector(0, 0, -27.5), App.Rotation())
sketch13.addGeometry(Part.Circle(Vector(6, 23, 0), Vector(0, 0, 1), 1.5), False)
sketch13.addConstraint(Sketcher.Constraint("Diameter", 0, Q("3 mm")))
sketch13.addConstraint(Sketcher.Constraint("DistanceX", -1, 1, 0, 3, Q("6 mm")))
sketch13.addConstraint(Sketcher.Constraint("DistanceY", -1, 1, 0, 3, Q("23 mm")))
sketch13.setExpression("Constraints[0]", "Params.sketch13_diameter")
pocket10 = body.newObject("PartDesign::Pocket", "Pocket009")
pocket10.Profile = sketch13
pocket10.setExpression("Length", "Params.pocket10_length")

doc.recompute()
